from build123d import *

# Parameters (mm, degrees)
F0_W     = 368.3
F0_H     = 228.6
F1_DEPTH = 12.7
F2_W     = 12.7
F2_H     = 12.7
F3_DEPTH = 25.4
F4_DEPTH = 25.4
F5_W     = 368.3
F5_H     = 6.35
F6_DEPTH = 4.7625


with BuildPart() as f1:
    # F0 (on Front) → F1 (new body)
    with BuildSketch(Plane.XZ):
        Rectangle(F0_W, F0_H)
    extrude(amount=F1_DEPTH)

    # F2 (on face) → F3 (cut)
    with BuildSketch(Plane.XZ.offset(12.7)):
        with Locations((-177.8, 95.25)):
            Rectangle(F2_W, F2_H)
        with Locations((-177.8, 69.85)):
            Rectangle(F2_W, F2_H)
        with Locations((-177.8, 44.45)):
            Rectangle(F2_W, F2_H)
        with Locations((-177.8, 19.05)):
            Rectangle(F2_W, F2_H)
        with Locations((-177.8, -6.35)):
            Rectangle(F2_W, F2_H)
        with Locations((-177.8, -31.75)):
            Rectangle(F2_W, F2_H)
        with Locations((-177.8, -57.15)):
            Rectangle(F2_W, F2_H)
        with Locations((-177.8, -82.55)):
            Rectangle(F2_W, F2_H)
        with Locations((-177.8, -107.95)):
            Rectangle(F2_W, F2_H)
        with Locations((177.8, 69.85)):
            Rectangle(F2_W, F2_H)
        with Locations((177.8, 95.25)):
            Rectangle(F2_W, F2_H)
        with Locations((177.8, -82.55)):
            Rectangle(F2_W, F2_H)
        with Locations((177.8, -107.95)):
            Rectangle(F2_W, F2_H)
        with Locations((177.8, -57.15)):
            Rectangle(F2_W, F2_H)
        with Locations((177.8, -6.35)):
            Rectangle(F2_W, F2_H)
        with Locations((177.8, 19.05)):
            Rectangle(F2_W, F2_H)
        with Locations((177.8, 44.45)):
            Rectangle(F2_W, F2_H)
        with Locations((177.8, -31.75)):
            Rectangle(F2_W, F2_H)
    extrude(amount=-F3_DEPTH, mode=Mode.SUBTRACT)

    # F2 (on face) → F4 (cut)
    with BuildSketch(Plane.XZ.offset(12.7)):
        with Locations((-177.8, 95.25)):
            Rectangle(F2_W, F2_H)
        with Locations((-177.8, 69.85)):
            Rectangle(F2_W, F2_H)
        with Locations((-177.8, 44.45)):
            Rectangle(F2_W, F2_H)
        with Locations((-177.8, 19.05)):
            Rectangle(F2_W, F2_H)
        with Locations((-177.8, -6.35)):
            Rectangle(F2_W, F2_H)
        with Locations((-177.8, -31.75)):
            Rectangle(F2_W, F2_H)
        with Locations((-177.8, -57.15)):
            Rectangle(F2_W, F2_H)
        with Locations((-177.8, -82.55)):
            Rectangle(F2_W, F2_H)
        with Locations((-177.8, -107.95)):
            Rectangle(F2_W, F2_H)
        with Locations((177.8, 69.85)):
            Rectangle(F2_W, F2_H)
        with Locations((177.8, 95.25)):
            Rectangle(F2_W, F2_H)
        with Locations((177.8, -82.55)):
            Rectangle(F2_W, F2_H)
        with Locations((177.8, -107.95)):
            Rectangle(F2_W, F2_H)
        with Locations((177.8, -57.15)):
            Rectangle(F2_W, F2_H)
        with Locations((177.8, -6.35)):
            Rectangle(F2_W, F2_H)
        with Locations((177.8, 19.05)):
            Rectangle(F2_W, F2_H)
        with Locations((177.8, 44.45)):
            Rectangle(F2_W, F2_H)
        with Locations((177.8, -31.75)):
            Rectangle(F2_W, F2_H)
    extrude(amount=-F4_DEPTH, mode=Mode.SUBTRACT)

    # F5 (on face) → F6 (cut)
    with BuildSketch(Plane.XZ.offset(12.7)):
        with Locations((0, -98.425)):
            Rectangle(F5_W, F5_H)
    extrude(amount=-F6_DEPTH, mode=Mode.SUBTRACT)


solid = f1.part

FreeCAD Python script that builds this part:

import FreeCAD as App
import Part
import Sketcher
Q = App.Units.Quantity


def add_polygon(sketch, points):
    """Adds a closed chain of lines whose ends are joined by coincident constraints."""
    first, n = sketch.GeometryCount, len(points)
    for a, b in zip(points, points[1:] + points[:1]):
        sketch.addGeometry(Part.LineSegment(App.Vector(*a, 0), App.Vector(*b, 0)), False)
    for i in range(n):
        sketch.addConstraint(Sketcher.Constraint("Coincident", first + i, 2, first + (i + 1) % n, 1))

doc = App.newDocument("Part")
body = doc.addObject("PartDesign::Body", "Body")

sketch1 = body.newObject("Sketcher::SketchObject", "Sketch")
sketch1.AttachmentSupport = (doc.getObject("XZ_Plane"), [""])
sketch1.MapMode = "FlatFace"
add_polygon(sketch1, [(-184, 114), (-184, -114), (184, -114), (184, 114)])
sketch1.addConstraint(Sketcher.Constraint("Vertical", 0))
sketch1.addConstraint(Sketcher.Constraint("Horizontal", 1))
sketch1.addConstraint(Sketcher.Constraint("Vertical", 2))
sketch1.addConstraint(Sketcher.Constraint("Horizontal", 3))
sketch1.addConstraint(Sketcher.Constraint("Symmetric", 0, 2, 2, 2, -1, 1))
sketch1.addConstraint(Sketcher.Constraint("DistanceY", 0, 2, 0, 1, Q("9 in")))
sketch1.addConstraint(Sketcher.Constraint("DistanceX", 1, 1, 1, 2, Q("14.5 in")))
pad1 = body.newObject("PartDesign::Pad", "Pad")
pad1.Profile = sketch1
pad1.Length = Q("0.5 in")

sketch2 = body.newObject("Sketcher::SketchObject", "Sketch001")
sketch2.AttachmentSupport = (doc.getObject("XZ_Plane"), [""])
sketch2.MapMode = "FlatFace"
sketch2.AttachmentOffset = App.Placement(App.Vector(0, 0, 0.5 * 25.4), App.Rotation())
add_polygon(sketch2, [(-184, 102), (-184, 89), (-171, 89), (-171, 102)])
add_polygon(sketch2, [(-184, 76), (-184, 64), (-171, 64), (-171, 76)])
add_polygon(sketch2, [(-184, 51), (-184, 38), (-171, 38), (-171, 51)])
add_polygon(sketch2, [(-184, 25), (-184, 13), (-171, 13), (-171, 25)])
add_polygon(sketch2, [(-184, 0), (-184, -13), (-171, -13), (-171, 0)])
add_polygon(sketch2, [(-184, -25), (-184, -38), (-171, -38), (-171, -25)])
add_polygon(sketch2, [(-184, -51), (-184, -64), (-171, -64), (-171, -51)])
add_polygon(sketch2, [(-184, -76), (-184, -89), (-171, -89), (-171, -76)])
add_polygon(sketch2, [(-184, -102), (-184, -114), (-171, -114), (-171, -102)])
add_polygon(sketch2, [(171, 76), (171, 64), (184, 64), (184, 76)])
add_polygon(sketch2, [(171, 102), (171, 89), (184, 89), (184, 102)])
add_polygon(sketch2, [(171, -76), (171, -89), (184, -89), (184, -76)])
add_polygon(sketch2, [(171, -102), (171, -114), (184, -114), (184, -102)])
add_polygon(sketch2, [(171, -51), (171, -64), (184, -64), (184, -51)])
add_polygon(sketch2, [(171, 0), (171, -13), (184, -13), (184, 0)])
add_polygon(sketch2, [(171, 25), (171, 13), (184, 13), (184, 25)])
add_polygon(sketch2, [(171, 51), (171, 38), (184, 38), (184, 51)])
add_polygon(sketch2, [(171, -25), (171, -38), (184, -38), (184, -25)])
sketch2.addConstraint(Sketcher.Constraint("Vertical", 0))
sketch2.addConstraint(Sketcher.Constraint("Horizontal", 1))
sketch2.addConstraint(Sketcher.Constraint("Vertical", 2))
sketch2.addConstraint(Sketcher.Constraint("Horizontal", 3))
sketch2.addConstraint(Sketcher.Constraint("Vertical", 4))
sketch2.addConstraint(Sketcher.Constraint("Horizontal", 5))
sketch2.addConstraint(Sketcher.Constraint("Vertical", 6))
sketch2.addConstraint(Sketcher.Constraint("Horizontal", 7))
sketch2.addConstraint(Sketcher.Constraint("Vertical", 8))
sketch2.addConstraint(Sketcher.Constraint("Horizontal", 9))
sketch2.addConstraint(Sketcher.Constraint("Vertical", 10))
sketch2.addConstraint(Sketcher.Constraint("Horizontal", 11))
sketch2.addConstraint(Sketcher.Constraint("Vertical", 12))
sketch2.addConstraint(Sketcher.Constraint("Horizontal", 13))
sketch2.addConstraint(Sketcher.Constraint("Vertical", 14))
sketch2.addConstraint(Sketcher.Constraint("Horizontal", 15))
sketch2.addConstraint(Sketcher.Constraint("Vertical", 16))
sketch2.addConstraint(Sketcher.Constraint("Horizontal", 17))
sketch2.addConstraint(Sketcher.Constraint("Vertical", 18))
sketch2.addConstraint(Sketcher.Constraint("Horizontal", 19))
sketch2.addConstraint(Sketcher.Constraint("Vertical", 20))
sketch2.addConstraint(Sketcher.Constraint("Horizontal", 21))
sketch2.addConstraint(Sketcher.Constraint("Vertical", 22))
sketch2.addConstraint(Sketcher.Constraint("Horizontal", 23))
sketch2.addConstraint(Sketcher.Constraint("Vertical", 24))
sketch2.addConstraint(Sketcher.Constraint("Horizontal", 25))
sketch2.addConstraint(Sketcher.Constraint("Vertical", 26))
sketch2.addConstraint(Sketcher.Constraint("Horizontal", 27))
sketch2.addConstraint(Sketcher.Constraint("Vertical", 28))
sketch2.addConstraint(Sketcher.Constraint("Horizontal", 29))
sketch2.addConstraint(Sketcher.Constraint("Vertical", 30))
sketch2.addConstraint(Sketcher.Constraint("Horizontal", 31))
sketch2.addConstraint(Sketcher.Constraint("Vertical", 32))
sketch2.addConstraint(Sketcher.Constraint("Horizontal", 33))
sketch2.addConstraint(Sketcher.Constraint("Vertical", 34))
sketch2.addConstraint(Sketcher.Constraint("Horizontal", 35))
sketch2.addConstraint(Sketcher.Constraint("Vertical", 36))
sketch2.addConstraint(Sketcher.Constraint("Horizontal", 37))
sketch2.addConstraint(Sketcher.Constraint("Vertical", 38))
sketch2.addConstraint(Sketcher.Constraint("Horizontal", 39))
sketch2.addConstraint(Sketcher.Constraint("Vertical", 40))
sketch2.addConstraint(Sketcher.Constraint("Horizontal", 41))
sketch2.addConstraint(Sketcher.Constraint("Vertical", 42))
sketch2.addConstraint(Sketcher.Constraint("Horizontal", 43))
sketch2.addConstraint(Sketcher.Constraint("Vertical", 44))
sketch2.addConstraint(Sketcher.Constraint("Horizontal", 45))
sketch2.addConstraint(Sketcher.Constraint("Vertical", 46))
sketch2.addConstraint(Sketcher.Constraint("Horizontal", 47))
sketch2.addConstraint(Sketcher.Constraint("Vertical", 48))
sketch2.addConstraint(Sketcher.Constraint("Horizontal", 49))
sketch2.addConstraint(Sketcher.Constraint("Vertical", 50))
sketch2.addConstraint(Sketcher.Constraint("Horizontal", 51))
sketch2.addConstraint(Sketcher.Constraint("Vertical", 52))
sketch2.addConstraint(Sketcher.Constraint("Horizontal", 53))
sketch2.addConstraint(Sketcher.Constraint("Vertical", 54))
sketch2.addConstraint(Sketcher.Constraint("Horizontal", 55))
sketch2.addConstraint(Sketcher.Constraint("Vertical", 56))
sketch2.addConstraint(Sketcher.Constraint("Horizontal", 57))
sketch2.addConstraint(Sketcher.Constraint("Vertical", 58))
sketch2.addConstraint(Sketcher.Constraint("Horizontal", 59))
sketch2.addConstraint(Sketcher.Constraint("Vertical", 60))
sketch2.addConstraint(Sketcher.Constraint("Horizontal", 61))
sketch2.addConstraint(Sketcher.Constraint("Vertical", 62))
sketch2.addConstraint(Sketcher.Constraint("Horizontal", 63))
sketch2.addConstraint(Sketcher.Constraint("Vertical", 64))
sketch2.addConstraint(Sketcher.Constraint("Horizontal", 65))
sketch2.addConstraint(Sketcher.Constraint("Vertical", 66))
sketch2.addConstraint(Sketcher.Constraint("Horizontal", 67))
sketch2.addConstraint(Sketcher.Constraint("Vertical", 68))
sketch2.addConstraint(Sketcher.Constraint("Horizontal", 69))
sketch2.addConstraint(Sketcher.Constraint("Vertical", 70))
sketch2.addConstraint(Sketcher.Constraint("Horizontal", 71))
sketch2.addConstraint(Sketcher.Constraint("Symmetric", 25, 2, 36, 2, -1, 1))
sketch2.addConstraint(Sketcher.Constraint("Symmetric", 31, 2, 38, 2, -1, 1))
sketch2.addConstraint(Sketcher.Constraint("Symmetric", 29, 2, 40, 2, -1, 1))
sketch2.addConstraint(Sketcher.Constraint("Symmetric", 35, 2, 42, 2, -1, 1))
sketch2.addConstraint(Sketcher.Constraint("Symmetric", 1, 2, 44, 2, -1, 1))
sketch2.addConstraint(Sketcher.Constraint("Symmetric", 7, 2, 46, 2, -1, 1))
sketch2.addConstraint(Sketcher.Constraint("Symmetric", 3, 2, 50, 2, -1, 1))
sketch2.addConstraint(Sketcher.Constraint("Symmetric", 5, 2, 52, 2, -1, 1))
sketch2.addConstraint(Sketcher.Constraint("Symmetric", 11, 2, 54, 2, -1, 1))
sketch2.addConstraint(Sketcher.Constraint("Symmetric", 13, 2, 56, 2, -1, 1))
sketch2.addConstraint(Sketcher.Constraint("Symmetric", 19, 2, 58, 2, -1, 1))
sketch2.addConstraint(Sketcher.Constraint("Symmetric", 17, 2, 60, 2, -1, 1))
sketch2.addConstraint(Sketcher.Constraint("Symmetric", 23, 2, 62, 2, -1, 1))
sketch2.addConstraint(Sketcher.Constraint("Symmetric", 21, 2, 64, 2, -1, 1))
sketch2.addConstraint(Sketcher.Constraint("Symmetric", 27, 2, 66, 2, -1, 1))
sketch2.addConstraint(Sketcher.Constraint("Symmetric", 9, 2, 68, 2, -1, 1))
sketch2.addConstraint(Sketcher.Constraint("Symmetric", 15, 2, 70, 2, -1, 1))
sketch2.addConstraint(Sketcher.Constraint("Symmetric", 5, 2, 36, 2, -2))
sketch2.addConstraint(Sketcher.Constraint("Symmetric", 7, 2, 38, 2, -2))
sketch2.addConstraint(Sketcher.Constraint("Symmetric", 1, 2, 40, 2, -2))
sketch2.addConstraint(Sketcher.Constraint("Symmetric", 3, 2, 42, 2, -2))
sketch2.addConstraint(Sketcher.Constraint("Symmetric", 33, 2, 48, 2, -2))
sketch2.addConstraint(Sketcher.Constraint("Symmetric", 27, 2, 54, 2, -2))
sketch2.addConstraint(Sketcher.Constraint("Symmetric", 17, 2, 56, 2, -2))
sketch2.addConstraint(Sketcher.Constraint("Symmetric", 15, 2, 62, 2, -2))
sketch2.addConstraint(Sketcher.Constraint("Symmetric", 9, 2, 64, 2, -2))
sketch2.addConstraint(Sketcher.Constraint("PointOnObject", 18, 2, -1))
sketch2.addConstraint(Sketcher.Constraint("Vertical", 3, 2, 4, 2))
sketch2.addConstraint(Sketcher.Constraint("Vertical", 2, 2, 5, 2))
sketch2.addConstraint(Sketcher.Constraint("Vertical", 7, 2, 8, 2))
sketch2.addConstraint(Sketcher.Constraint("Vertical", 6, 2, 9, 2))
sketch2.addConstraint(Sketcher.Constraint("Vertical", 11, 2, 12, 2))
sketch2.addConstraint(Sketcher.Constraint("Vertical", 10, 2, 13, 2))
sketch2.addConstraint(Sketcher.Constraint("Vertical", 15, 2, 16, 2))
sketch2.addConstraint(Sketcher.Constraint("Vertical", 30, 2, 33, 2))
sketch2.addConstraint(Sketcher.Constraint("Equal", 71, 0))
sketch2.addConstraint(Sketcher.Constraint("Equal", 2, 4))
sketch2.addConstraint(Sketcher.Constraint("Equal", 6, 8))
sketch2.addConstraint(Sketcher.Constraint("Equal", 10, 12))
sketch2.addConstraint(Sketcher.Constraint("Equal", 14, 16))
sketch2.addConstraint(Sketcher.Constraint("Equal", 18, 20))
sketch2.addConstraint(Sketcher.Constraint("Equal", 22, 24))
sketch2.addConstraint(Sketcher.Constraint("Equal", 26, 28))
sketch2.addConstraint(Sketcher.Constraint("Equal", 30, 32))
sketch2.addConstraint(Sketcher.Constraint("DistanceX", 1, 1, 1, 2, Q("0.5 in")))
sketch2.addConstraint(Sketcher.Constraint("DistanceX", 0, 2, -1, 1, Q("7.25 in")))
pocket1 = body.newObject("PartDesign::Pocket", "Pocket")
pocket1.Profile = sketch2
pocket1.Length = Q("1 in")

sketch3 = body.newObject("Sketcher::SketchObject", "Sketch002")
sketch3.AttachmentSupport = (doc.getObject("XZ_Plane"), [""])
sketch3.MapMode = "FlatFace"
sketch3.AttachmentOffset = App.Placement(App.Vector(0, 0, 0.5 * 25.4), App.Rotation())
add_polygon(sketch3, [(-184, 102), (-184, 89), (-171, 89), (-171, 102)])
add_polygon(sketch3, [(-184, 76), (-184, 64), (-171, 64), (-171, 76)])
add_polygon(sketch3, [(-184, 51), (-184, 38), (-171, 38), (-171, 51)])
add_polygon(sketch3, [(-184, 25), (-184, 13), (-171, 13), (-171, 25)])
add_polygon(sketch3, [(-184, 0), (-184, -13), (-171, -13), (-171, 0)])
add_polygon(sketch3, [(-184, -25), (-184, -38), (-171, -38), (-171, -25)])
add_polygon(sketch3, [(-184, -51), (-184, -64), (-171, -64), (-171, -51)])
add_polygon(sketch3, [(-184, -76), (-184, -89), (-171, -89), (-171, -76)])
add_polygon(sketch3, [(-184, -102), (-184, -114), (-171, -114), (-171, -102)])
add_polygon(sketch3, [(171, 76), (171, 64), (184, 64), (184, 76)])
add_polygon(sketch3, [(171, 102), (171, 89), (184, 89), (184, 102)])
add_polygon(sketch3, [(171, -76), (171, -89), (184, -89), (184, -76)])
add_polygon(sketch3, [(171, -102), (171, -114), (184, -114), (184, -102)])
add_polygon(sketch3, [(171, -51), (171, -64), (184, -64), (184, -51)])
add_polygon(sketch3, [(171, 0), (171, -13), (184, -13), (184, 0)])
add_polygon(sketch3, [(171, 25), (171, 13), (184, 13), (184, 25)])
add_polygon(sketch3, [(171, 51), (171, 38), (184, 38), (184, 51)])
add_polygon(sketch3, [(171, -25), (171, -38), (184, -38), (184, -25)])
sketch3.addConstraint(Sketcher.Constraint("Vertical", 0))
sketch3.addConstraint(Sketcher.Constraint("Horizontal", 1))
sketch3.addConstraint(Sketcher.Constraint("Vertical", 2))
sketch3.addConstraint(Sketcher.Constraint("Horizontal", 3))
sketch3.addConstraint(Sketcher.Constraint("Vertical", 4))
sketch3.addConstraint(Sketcher.Constraint("Horizontal", 5))
sketch3.addConstraint(Sketcher.Constraint("Vertical", 6))
sketch3.addConstraint(Sketcher.Constraint("Horizontal", 7))
sketch3.addConstraint(Sketcher.Constraint("Vertical", 8))
sketch3.addConstraint(Sketcher.Constraint("Horizontal", 9))
sketch3.addConstraint(Sketcher.Constraint("Vertical", 10))
sketch3.addConstraint(Sketcher.Constraint("Horizontal", 11))
sketch3.addConstraint(Sketcher.Constraint("Vertical", 12))
sketch3.addConstraint(Sketcher.Constraint("Horizontal", 13))
sketch3.addConstraint(Sketcher.Constraint("Vertical", 14))
sketch3.addConstraint(Sketcher.Constraint("Horizontal", 15))
sketch3.addConstraint(Sketcher.Constraint("Vertical", 16))
sketch3.addConstraint(Sketcher.Constraint("Horizontal", 17))
sketch3.addConstraint(Sketcher.Constraint("Vertical", 18))
sketch3.addConstraint(Sketcher.Constraint("Horizontal", 19))
sketch3.addConstraint(Sketcher.Constraint("Vertical", 20))
sketch3.addConstraint(Sketcher.Constraint("Horizontal", 21))
sketch3.addConstraint(Sketcher.Constraint("Vertical", 22))
sketch3.addConstraint(Sketcher.Constraint("Horizontal", 23))
sketch3.addConstraint(Sketcher.Constraint("Vertical", 24))
sketch3.addConstraint(Sketcher.Constraint("Horizontal", 25))
sketch3.addConstraint(Sketcher.Constraint("Vertical", 26))
sketch3.addConstraint(Sketcher.Constraint("Horizontal", 27))
sketch3.addConstraint(Sketcher.Constraint("Vertical", 28))
sketch3.addConstraint(Sketcher.Constraint("Horizontal", 29))
sketch3.addConstraint(Sketcher.Constraint("Vertical", 30))
sketch3.addConstraint(Sketcher.Constraint("Horizontal", 31))
sketch3.addConstraint(Sketcher.Constraint("Vertical", 32))
sketch3.addConstraint(Sketcher.Constraint("Horizontal", 33))
sketch3.addConstraint(Sketcher.Constraint("Vertical", 34))
sketch3.addConstraint(Sketcher.Constraint("Horizontal", 35))
sketch3.addConstraint(Sketcher.Constraint("Vertical", 36))
sketch3.addConstraint(Sketcher.Constraint("Horizontal", 37))
sketch3.addConstraint(Sketcher.Constraint("Vertical", 38))
sketch3.addConstraint(Sketcher.Constraint("Horizontal", 39))
sketch3.addConstraint(Sketcher.Constraint("Vertical", 40))
sketch3.addConstraint(Sketcher.Constraint("Horizontal", 41))
sketch3.addConstraint(Sketcher.Constraint("Vertical", 42))
sketch3.addConstraint(Sketcher.Constraint("Horizontal", 43))
sketch3.addConstraint(Sketcher.Constraint("Vertical", 44))
sketch3.addConstraint(Sketcher.Constraint("Horizontal", 45))
sketch3.addConstraint(Sketcher.Constraint("Vertical", 46))
sketch3.addConstraint(Sketcher.Constraint("Horizontal", 47))
sketch3.addConstraint(Sketcher.Constraint("Vertical", 48))
sketch3.addConstraint(Sketcher.Constraint("Horizontal", 49))
sketch3.addConstraint(Sketcher.Constraint("Vertical", 50))
sketch3.addConstraint(Sketcher.Constraint("Horizontal", 51))
sketch3.addConstraint(Sketcher.Constraint("Vertical", 52))
sketch3.addConstraint(Sketcher.Constraint("Horizontal", 53))
sketch3.addConstraint(Sketcher.Constraint("Vertical", 54))
sketch3.addConstraint(Sketcher.Constraint("Horizontal", 55))
sketch3.addConstraint(Sketcher.Constraint("Vertical", 56))
sketch3.addConstraint(Sketcher.Constraint("Horizontal", 57))
sketch3.addConstraint(Sketcher.Constraint("Vertical", 58))
sketch3.addConstraint(Sketcher.Constraint("Horizontal", 59))
sketch3.addConstraint(Sketcher.Constraint("Vertical", 60))
sketch3.addConstraint(Sketcher.Constraint("Horizontal", 61))
sketch3.addConstraint(Sketcher.Constraint("Vertical", 62))
sketch3.addConstraint(Sketcher.Constraint("Horizontal", 63))
sketch3.addConstraint(Sketcher.Constraint("Vertical", 64))
sketch3.addConstraint(Sketcher.Constraint("Horizontal", 65))
sketch3.addConstraint(Sketcher.Constraint("Vertical", 66))
sketch3.addConstraint(Sketcher.Constraint("Horizontal", 67))
sketch3.addConstraint(Sketcher.Constraint("Vertical", 68))
sketch3.addConstraint(Sketcher.Constraint("Horizontal", 69))
sketch3.addConstraint(Sketcher.Constraint("Vertical", 70))
sketch3.addConstraint(Sketcher.Constraint("Horizontal", 71))
sketch3.addConstraint(Sketcher.Constraint("Symmetric", 25, 2, 36, 2, -1, 1))
sketch3.addConstraint(Sketcher.Constraint("Symmetric", 31, 2, 38, 2, -1, 1))
sketch3.addConstraint(Sketcher.Constraint("Symmetric", 29, 2, 40, 2, -1, 1))
sketch3.addConstraint(Sketcher.Constraint("Symmetric", 35, 2, 42, 2, -1, 1))
sketch3.addConstraint(Sketcher.Constraint("Symmetric", 1, 2, 44, 2, -1, 1))
sketch3.addConstraint(Sketcher.Constraint("Symmetric", 7, 2, 46, 2, -1, 1))
sketch3.addConstraint(Sketcher.Constraint("Symmetric", 3, 2, 50, 2, -1, 1))
sketch3.addConstraint(Sketcher.Constraint("Symmetric", 5, 2, 52, 2, -1, 1))
sketch3.addConstraint(Sketcher.Constraint("Symmetric", 11, 2, 54, 2, -1, 1))
sketch3.addConstraint(Sketcher.Constraint("Symmetric", 13, 2, 56, 2, -1, 1))
sketch3.addConstraint(Sketcher.Constraint("Symmetric", 19, 2, 58, 2, -1, 1))
sketch3.addConstraint(Sketcher.Constraint("Symmetric", 17, 2, 60, 2, -1, 1))
sketch3.addConstraint(Sketcher.Constraint("Symmetric", 23, 2, 62, 2, -1, 1))
sketch3.addConstraint(Sketcher.Constraint("Symmetric", 21, 2, 64, 2, -1, 1))
sketch3.addConstraint(Sketcher.Constraint("Symmetric", 27, 2, 66, 2, -1, 1))
sketch3.addConstraint(Sketcher.Constraint("Symmetric", 9, 2, 68, 2, -1, 1))
sketch3.addConstraint(Sketcher.Constraint("Symmetric", 15, 2, 70, 2, -1, 1))
sketch3.addConstraint(Sketcher.Constraint("Symmetric", 5, 2, 36, 2, -2))
sketch3.addConstraint(Sketcher.Constraint("Symmetric", 7, 2, 38, 2, -2))
sketch3.addConstraint(Sketcher.Constraint("Symmetric", 1, 2, 40, 2, -2))
sketch3.addConstraint(Sketcher.Constraint("Symmetric", 3, 2, 42, 2, -2))
sketch3.addConstraint(Sketcher.Constraint("Symmetric", 33, 2, 48, 2, -2))
sketch3.addConstraint(Sketcher.Constraint("Symmetric", 27, 2, 54, 2, -2))
sketch3.addConstraint(Sketcher.Constraint("Symmetric", 17, 2, 56, 2, -2))
sketch3.addConstraint(Sketcher.Constraint("Symmetric", 15, 2, 62, 2, -2))
sketch3.addConstraint(Sketcher.Constraint("Symmetric", 9, 2, 64, 2, -2))
sketch3.addConstraint(Sketcher.Constraint("PointOnObject", 18, 2, -1))
sketch3.addConstraint(Sketcher.Constraint("Vertical", 3, 2, 4, 2))
sketch3.addConstraint(Sketcher.Constraint("Vertical", 2, 2, 5, 2))
sketch3.addConstraint(Sketcher.Constraint("Vertical", 7, 2, 8, 2))
sketch3.addConstraint(Sketcher.Constraint("Vertical", 6, 2, 9, 2))
sketch3.addConstraint(Sketcher.Constraint("Vertical", 11, 2, 12, 2))
sketch3.addConstraint(Sketcher.Constraint("Vertical", 10, 2, 13, 2))
sketch3.addConstraint(Sketcher.Constraint("Vertical", 15, 2, 16, 2))
sketch3.addConstraint(Sketcher.Constraint("Vertical", 30, 2, 33, 2))
sketch3.addConstraint(Sketcher.Constraint("Equal", 71, 0))
sketch3.addConstraint(Sketcher.Constraint("Equal", 2, 4))
sketch3.addConstraint(Sketcher.Constraint("Equal", 6, 8))
sketch3.addConstraint(Sketcher.Constraint("Equal", 10, 12))
sketch3.addConstraint(Sketcher.Constraint("Equal", 14, 16))
sketch3.addConstraint(Sketcher.Constraint("Equal", 18, 20))
sketch3.addConstraint(Sketcher.Constraint("Equal", 22, 24))
sketch3.addConstraint(Sketcher.Constraint("Equal", 26, 28))
sketch3.addConstraint(Sketcher.Constraint("Equal", 30, 32))
sketch3.addConstraint(Sketcher.Constraint("DistanceX", 1, 1, 1, 2, Q("0.5 in")))
sketch3.addConstraint(Sketcher.Constraint("DistanceX", 0, 2, -1, 1, Q("7.25 in")))
pocket2 = body.newObject("PartDesign::Pocket", "Pocket001")
pocket2.Profile = sketch3
pocket2.Length = Q("1 in")

sketch4 = body.newObject("Sketcher::SketchObject", "Sketch003")
sketch4.AttachmentSupport = (doc.getObject("XZ_Plane"), [""])
sketch4.MapMode = "FlatFace"
sketch4.AttachmentOffset = App.Placement(App.Vector(0, 0, 0.5 * 25.4), App.Rotation())
add_polygon(sketch4, [(-184, -95), (-184, -102), (184, -102), (184, -95)])
sketch4.addConstraint(Sketcher.Constraint("Vertical", 0))
sketch4.addConstraint(Sketcher.Constraint("Horizontal", 1))
sketch4.addConstraint(Sketcher.Constraint("Vertical", 2))
sketch4.addConstraint(Sketcher.Constraint("Horizontal", 3))
sketch4.addConstraint(Sketcher.Constraint("DistanceX", 1, 1, 1, 2, Q("14.5 in")))
sketch4.addConstraint(Sketcher.Constraint("DistanceY", 0, 2, -1, 1, Q("4 in")))
sketch4.addConstraint(Sketcher.Constraint("DistanceY", 0, 2, 0, 1, Q("0.25 in")))
sketch4.addConstraint(Sketcher.Constraint("DistanceX", 0, 2, -1, 1, Q("7.25 in")))
pocket3 = body.newObject("PartDesign::Pocket", "Pocket002")
pocket3.Profile = sketch4
pocket3.Length = Q("0.1875 in")

doc.recompute()
